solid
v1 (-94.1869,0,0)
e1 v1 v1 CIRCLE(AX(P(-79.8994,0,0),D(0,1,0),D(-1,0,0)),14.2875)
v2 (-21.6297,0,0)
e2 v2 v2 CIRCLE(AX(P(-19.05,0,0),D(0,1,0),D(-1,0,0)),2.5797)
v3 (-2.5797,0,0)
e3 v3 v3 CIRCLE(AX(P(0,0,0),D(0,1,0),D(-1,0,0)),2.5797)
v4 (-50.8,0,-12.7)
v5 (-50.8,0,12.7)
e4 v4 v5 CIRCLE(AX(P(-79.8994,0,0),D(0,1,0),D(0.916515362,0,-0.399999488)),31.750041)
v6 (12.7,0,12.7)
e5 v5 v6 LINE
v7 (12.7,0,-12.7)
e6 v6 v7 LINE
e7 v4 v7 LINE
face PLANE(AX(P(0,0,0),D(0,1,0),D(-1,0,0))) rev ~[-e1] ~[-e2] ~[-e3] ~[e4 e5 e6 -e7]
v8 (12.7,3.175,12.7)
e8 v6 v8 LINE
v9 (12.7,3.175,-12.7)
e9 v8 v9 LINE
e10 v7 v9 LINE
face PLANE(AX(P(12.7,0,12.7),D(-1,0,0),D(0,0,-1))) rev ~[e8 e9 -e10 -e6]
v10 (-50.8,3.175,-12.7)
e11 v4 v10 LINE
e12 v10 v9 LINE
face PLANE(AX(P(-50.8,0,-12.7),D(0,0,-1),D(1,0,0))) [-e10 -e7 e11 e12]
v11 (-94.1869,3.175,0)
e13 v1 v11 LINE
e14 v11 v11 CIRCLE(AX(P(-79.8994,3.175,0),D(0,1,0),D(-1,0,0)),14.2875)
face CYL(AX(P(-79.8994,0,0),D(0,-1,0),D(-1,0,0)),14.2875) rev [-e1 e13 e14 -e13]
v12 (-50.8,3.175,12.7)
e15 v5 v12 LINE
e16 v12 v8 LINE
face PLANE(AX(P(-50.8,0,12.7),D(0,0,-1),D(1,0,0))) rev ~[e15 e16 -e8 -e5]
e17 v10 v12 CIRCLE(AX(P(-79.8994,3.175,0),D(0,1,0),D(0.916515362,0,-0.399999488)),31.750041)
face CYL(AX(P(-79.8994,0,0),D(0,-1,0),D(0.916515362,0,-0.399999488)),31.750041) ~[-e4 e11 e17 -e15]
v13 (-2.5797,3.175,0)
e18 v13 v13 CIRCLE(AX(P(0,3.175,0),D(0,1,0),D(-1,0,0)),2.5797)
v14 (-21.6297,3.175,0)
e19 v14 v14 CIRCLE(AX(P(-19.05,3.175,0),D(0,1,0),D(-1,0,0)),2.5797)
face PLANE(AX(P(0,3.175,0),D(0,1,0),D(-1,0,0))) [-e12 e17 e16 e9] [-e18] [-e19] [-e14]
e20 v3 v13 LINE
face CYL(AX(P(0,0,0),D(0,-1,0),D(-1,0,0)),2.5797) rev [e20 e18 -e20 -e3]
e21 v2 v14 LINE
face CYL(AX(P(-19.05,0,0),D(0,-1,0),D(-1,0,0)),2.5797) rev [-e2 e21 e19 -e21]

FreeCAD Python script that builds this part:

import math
import FreeCAD as App
import Part
import Sketcher

V = App.Vector
Q = App.Units.Quantity

doc = App.newDocument("Part")
body = doc.addObject("PartDesign::Body", "Body")

# Sketch on XZ plane
sketch1 = doc.addObject("Sketcher::SketchObject", "Sketch")
body.addObject(sketch1)
sketch1.AttachmentSupport = (doc.XZ_Plane, [""])
sketch1.MapMode = "FlatFace"
sketch1.addGeometry([
    Part.LineSegment(V(12.7, -12.7, 0), V(-50.8, -12.7, 0)),  # 0
    Part.ArcOfCircle(Part.Circle(V(-79.8994, 0, 0), V(0, 0, 1), 31.750041), math.radians(23.578146), math.radians(336.421854)),  # 1
    Part.LineSegment(V(-50.8, 12.7, 0), V(12.7, 12.7, 0)),  # 2
    Part.LineSegment(V(12.7, 12.7, 0), V(12.7, -12.7, 0)),  # 3
    Part.Circle(V(0, 0, 0), V(0, 0, 1), 2.5797),  # 4
    Part.Circle(V(-19.05, 0, 0), V(0, 0, 1), 2.5797),  # 5
    Part.Circle(V(-79.8994, 0, 0), V(0, 0, 1), 14.2875),  # 6
], False)
sketch1.addConstraint([
    Sketcher.Constraint("Coincident", 0, 2, 1, 2),
    Sketcher.Constraint("Coincident", 1, 1, 2, 1),
    Sketcher.Constraint("Coincident", 2, 2, 3, 1),
    Sketcher.Constraint("Coincident", 3, 2, 0, 1),
    Sketcher.Constraint("Horizontal", 0),
    Sketcher.Constraint("Horizontal", 2),
    Sketcher.Constraint("Vertical", 3),
    Sketcher.Constraint("Coincident", 4, 3, -1, 1),
    Sketcher.Constraint("Coincident", 6, 3, 1, 3),
    Sketcher.Constraint("Equal", 4, 5),
    Sketcher.Constraint("Symmetric", 0, 2, 1, 1, -1),
    Sketcher.Constraint("PointOnObject", 5, 3, -1),
    Sketcher.Constraint("Radius", 1, Q("1.25 in")),
    Sketcher.Constraint("Diameter", 4, Q("0.203126 in")),
    Sketcher.Constraint("Diameter", 6, Q("1.125 in")),
    Sketcher.Constraint("DistanceX", 0, 2, 0, 1, Q("2.5 in")),
    Sketcher.Constraint("DistanceY", 0, 2, -1, 1, Q("0.5 in")),
    Sketcher.Constraint("DistanceX", -1, 1, 2, 2, Q("0.5 in")),
    Sketcher.Constraint("DistanceX", 5, 3, -1, 1, Q("0.75 in")),
])
pad1 = doc.addObject("PartDesign::Pad", "Pad")
body.addObject(pad1)
pad1.Profile = sketch1
pad1.Length = Q("0.125 in")
pad1.Reversed = True

doc.recompute()
